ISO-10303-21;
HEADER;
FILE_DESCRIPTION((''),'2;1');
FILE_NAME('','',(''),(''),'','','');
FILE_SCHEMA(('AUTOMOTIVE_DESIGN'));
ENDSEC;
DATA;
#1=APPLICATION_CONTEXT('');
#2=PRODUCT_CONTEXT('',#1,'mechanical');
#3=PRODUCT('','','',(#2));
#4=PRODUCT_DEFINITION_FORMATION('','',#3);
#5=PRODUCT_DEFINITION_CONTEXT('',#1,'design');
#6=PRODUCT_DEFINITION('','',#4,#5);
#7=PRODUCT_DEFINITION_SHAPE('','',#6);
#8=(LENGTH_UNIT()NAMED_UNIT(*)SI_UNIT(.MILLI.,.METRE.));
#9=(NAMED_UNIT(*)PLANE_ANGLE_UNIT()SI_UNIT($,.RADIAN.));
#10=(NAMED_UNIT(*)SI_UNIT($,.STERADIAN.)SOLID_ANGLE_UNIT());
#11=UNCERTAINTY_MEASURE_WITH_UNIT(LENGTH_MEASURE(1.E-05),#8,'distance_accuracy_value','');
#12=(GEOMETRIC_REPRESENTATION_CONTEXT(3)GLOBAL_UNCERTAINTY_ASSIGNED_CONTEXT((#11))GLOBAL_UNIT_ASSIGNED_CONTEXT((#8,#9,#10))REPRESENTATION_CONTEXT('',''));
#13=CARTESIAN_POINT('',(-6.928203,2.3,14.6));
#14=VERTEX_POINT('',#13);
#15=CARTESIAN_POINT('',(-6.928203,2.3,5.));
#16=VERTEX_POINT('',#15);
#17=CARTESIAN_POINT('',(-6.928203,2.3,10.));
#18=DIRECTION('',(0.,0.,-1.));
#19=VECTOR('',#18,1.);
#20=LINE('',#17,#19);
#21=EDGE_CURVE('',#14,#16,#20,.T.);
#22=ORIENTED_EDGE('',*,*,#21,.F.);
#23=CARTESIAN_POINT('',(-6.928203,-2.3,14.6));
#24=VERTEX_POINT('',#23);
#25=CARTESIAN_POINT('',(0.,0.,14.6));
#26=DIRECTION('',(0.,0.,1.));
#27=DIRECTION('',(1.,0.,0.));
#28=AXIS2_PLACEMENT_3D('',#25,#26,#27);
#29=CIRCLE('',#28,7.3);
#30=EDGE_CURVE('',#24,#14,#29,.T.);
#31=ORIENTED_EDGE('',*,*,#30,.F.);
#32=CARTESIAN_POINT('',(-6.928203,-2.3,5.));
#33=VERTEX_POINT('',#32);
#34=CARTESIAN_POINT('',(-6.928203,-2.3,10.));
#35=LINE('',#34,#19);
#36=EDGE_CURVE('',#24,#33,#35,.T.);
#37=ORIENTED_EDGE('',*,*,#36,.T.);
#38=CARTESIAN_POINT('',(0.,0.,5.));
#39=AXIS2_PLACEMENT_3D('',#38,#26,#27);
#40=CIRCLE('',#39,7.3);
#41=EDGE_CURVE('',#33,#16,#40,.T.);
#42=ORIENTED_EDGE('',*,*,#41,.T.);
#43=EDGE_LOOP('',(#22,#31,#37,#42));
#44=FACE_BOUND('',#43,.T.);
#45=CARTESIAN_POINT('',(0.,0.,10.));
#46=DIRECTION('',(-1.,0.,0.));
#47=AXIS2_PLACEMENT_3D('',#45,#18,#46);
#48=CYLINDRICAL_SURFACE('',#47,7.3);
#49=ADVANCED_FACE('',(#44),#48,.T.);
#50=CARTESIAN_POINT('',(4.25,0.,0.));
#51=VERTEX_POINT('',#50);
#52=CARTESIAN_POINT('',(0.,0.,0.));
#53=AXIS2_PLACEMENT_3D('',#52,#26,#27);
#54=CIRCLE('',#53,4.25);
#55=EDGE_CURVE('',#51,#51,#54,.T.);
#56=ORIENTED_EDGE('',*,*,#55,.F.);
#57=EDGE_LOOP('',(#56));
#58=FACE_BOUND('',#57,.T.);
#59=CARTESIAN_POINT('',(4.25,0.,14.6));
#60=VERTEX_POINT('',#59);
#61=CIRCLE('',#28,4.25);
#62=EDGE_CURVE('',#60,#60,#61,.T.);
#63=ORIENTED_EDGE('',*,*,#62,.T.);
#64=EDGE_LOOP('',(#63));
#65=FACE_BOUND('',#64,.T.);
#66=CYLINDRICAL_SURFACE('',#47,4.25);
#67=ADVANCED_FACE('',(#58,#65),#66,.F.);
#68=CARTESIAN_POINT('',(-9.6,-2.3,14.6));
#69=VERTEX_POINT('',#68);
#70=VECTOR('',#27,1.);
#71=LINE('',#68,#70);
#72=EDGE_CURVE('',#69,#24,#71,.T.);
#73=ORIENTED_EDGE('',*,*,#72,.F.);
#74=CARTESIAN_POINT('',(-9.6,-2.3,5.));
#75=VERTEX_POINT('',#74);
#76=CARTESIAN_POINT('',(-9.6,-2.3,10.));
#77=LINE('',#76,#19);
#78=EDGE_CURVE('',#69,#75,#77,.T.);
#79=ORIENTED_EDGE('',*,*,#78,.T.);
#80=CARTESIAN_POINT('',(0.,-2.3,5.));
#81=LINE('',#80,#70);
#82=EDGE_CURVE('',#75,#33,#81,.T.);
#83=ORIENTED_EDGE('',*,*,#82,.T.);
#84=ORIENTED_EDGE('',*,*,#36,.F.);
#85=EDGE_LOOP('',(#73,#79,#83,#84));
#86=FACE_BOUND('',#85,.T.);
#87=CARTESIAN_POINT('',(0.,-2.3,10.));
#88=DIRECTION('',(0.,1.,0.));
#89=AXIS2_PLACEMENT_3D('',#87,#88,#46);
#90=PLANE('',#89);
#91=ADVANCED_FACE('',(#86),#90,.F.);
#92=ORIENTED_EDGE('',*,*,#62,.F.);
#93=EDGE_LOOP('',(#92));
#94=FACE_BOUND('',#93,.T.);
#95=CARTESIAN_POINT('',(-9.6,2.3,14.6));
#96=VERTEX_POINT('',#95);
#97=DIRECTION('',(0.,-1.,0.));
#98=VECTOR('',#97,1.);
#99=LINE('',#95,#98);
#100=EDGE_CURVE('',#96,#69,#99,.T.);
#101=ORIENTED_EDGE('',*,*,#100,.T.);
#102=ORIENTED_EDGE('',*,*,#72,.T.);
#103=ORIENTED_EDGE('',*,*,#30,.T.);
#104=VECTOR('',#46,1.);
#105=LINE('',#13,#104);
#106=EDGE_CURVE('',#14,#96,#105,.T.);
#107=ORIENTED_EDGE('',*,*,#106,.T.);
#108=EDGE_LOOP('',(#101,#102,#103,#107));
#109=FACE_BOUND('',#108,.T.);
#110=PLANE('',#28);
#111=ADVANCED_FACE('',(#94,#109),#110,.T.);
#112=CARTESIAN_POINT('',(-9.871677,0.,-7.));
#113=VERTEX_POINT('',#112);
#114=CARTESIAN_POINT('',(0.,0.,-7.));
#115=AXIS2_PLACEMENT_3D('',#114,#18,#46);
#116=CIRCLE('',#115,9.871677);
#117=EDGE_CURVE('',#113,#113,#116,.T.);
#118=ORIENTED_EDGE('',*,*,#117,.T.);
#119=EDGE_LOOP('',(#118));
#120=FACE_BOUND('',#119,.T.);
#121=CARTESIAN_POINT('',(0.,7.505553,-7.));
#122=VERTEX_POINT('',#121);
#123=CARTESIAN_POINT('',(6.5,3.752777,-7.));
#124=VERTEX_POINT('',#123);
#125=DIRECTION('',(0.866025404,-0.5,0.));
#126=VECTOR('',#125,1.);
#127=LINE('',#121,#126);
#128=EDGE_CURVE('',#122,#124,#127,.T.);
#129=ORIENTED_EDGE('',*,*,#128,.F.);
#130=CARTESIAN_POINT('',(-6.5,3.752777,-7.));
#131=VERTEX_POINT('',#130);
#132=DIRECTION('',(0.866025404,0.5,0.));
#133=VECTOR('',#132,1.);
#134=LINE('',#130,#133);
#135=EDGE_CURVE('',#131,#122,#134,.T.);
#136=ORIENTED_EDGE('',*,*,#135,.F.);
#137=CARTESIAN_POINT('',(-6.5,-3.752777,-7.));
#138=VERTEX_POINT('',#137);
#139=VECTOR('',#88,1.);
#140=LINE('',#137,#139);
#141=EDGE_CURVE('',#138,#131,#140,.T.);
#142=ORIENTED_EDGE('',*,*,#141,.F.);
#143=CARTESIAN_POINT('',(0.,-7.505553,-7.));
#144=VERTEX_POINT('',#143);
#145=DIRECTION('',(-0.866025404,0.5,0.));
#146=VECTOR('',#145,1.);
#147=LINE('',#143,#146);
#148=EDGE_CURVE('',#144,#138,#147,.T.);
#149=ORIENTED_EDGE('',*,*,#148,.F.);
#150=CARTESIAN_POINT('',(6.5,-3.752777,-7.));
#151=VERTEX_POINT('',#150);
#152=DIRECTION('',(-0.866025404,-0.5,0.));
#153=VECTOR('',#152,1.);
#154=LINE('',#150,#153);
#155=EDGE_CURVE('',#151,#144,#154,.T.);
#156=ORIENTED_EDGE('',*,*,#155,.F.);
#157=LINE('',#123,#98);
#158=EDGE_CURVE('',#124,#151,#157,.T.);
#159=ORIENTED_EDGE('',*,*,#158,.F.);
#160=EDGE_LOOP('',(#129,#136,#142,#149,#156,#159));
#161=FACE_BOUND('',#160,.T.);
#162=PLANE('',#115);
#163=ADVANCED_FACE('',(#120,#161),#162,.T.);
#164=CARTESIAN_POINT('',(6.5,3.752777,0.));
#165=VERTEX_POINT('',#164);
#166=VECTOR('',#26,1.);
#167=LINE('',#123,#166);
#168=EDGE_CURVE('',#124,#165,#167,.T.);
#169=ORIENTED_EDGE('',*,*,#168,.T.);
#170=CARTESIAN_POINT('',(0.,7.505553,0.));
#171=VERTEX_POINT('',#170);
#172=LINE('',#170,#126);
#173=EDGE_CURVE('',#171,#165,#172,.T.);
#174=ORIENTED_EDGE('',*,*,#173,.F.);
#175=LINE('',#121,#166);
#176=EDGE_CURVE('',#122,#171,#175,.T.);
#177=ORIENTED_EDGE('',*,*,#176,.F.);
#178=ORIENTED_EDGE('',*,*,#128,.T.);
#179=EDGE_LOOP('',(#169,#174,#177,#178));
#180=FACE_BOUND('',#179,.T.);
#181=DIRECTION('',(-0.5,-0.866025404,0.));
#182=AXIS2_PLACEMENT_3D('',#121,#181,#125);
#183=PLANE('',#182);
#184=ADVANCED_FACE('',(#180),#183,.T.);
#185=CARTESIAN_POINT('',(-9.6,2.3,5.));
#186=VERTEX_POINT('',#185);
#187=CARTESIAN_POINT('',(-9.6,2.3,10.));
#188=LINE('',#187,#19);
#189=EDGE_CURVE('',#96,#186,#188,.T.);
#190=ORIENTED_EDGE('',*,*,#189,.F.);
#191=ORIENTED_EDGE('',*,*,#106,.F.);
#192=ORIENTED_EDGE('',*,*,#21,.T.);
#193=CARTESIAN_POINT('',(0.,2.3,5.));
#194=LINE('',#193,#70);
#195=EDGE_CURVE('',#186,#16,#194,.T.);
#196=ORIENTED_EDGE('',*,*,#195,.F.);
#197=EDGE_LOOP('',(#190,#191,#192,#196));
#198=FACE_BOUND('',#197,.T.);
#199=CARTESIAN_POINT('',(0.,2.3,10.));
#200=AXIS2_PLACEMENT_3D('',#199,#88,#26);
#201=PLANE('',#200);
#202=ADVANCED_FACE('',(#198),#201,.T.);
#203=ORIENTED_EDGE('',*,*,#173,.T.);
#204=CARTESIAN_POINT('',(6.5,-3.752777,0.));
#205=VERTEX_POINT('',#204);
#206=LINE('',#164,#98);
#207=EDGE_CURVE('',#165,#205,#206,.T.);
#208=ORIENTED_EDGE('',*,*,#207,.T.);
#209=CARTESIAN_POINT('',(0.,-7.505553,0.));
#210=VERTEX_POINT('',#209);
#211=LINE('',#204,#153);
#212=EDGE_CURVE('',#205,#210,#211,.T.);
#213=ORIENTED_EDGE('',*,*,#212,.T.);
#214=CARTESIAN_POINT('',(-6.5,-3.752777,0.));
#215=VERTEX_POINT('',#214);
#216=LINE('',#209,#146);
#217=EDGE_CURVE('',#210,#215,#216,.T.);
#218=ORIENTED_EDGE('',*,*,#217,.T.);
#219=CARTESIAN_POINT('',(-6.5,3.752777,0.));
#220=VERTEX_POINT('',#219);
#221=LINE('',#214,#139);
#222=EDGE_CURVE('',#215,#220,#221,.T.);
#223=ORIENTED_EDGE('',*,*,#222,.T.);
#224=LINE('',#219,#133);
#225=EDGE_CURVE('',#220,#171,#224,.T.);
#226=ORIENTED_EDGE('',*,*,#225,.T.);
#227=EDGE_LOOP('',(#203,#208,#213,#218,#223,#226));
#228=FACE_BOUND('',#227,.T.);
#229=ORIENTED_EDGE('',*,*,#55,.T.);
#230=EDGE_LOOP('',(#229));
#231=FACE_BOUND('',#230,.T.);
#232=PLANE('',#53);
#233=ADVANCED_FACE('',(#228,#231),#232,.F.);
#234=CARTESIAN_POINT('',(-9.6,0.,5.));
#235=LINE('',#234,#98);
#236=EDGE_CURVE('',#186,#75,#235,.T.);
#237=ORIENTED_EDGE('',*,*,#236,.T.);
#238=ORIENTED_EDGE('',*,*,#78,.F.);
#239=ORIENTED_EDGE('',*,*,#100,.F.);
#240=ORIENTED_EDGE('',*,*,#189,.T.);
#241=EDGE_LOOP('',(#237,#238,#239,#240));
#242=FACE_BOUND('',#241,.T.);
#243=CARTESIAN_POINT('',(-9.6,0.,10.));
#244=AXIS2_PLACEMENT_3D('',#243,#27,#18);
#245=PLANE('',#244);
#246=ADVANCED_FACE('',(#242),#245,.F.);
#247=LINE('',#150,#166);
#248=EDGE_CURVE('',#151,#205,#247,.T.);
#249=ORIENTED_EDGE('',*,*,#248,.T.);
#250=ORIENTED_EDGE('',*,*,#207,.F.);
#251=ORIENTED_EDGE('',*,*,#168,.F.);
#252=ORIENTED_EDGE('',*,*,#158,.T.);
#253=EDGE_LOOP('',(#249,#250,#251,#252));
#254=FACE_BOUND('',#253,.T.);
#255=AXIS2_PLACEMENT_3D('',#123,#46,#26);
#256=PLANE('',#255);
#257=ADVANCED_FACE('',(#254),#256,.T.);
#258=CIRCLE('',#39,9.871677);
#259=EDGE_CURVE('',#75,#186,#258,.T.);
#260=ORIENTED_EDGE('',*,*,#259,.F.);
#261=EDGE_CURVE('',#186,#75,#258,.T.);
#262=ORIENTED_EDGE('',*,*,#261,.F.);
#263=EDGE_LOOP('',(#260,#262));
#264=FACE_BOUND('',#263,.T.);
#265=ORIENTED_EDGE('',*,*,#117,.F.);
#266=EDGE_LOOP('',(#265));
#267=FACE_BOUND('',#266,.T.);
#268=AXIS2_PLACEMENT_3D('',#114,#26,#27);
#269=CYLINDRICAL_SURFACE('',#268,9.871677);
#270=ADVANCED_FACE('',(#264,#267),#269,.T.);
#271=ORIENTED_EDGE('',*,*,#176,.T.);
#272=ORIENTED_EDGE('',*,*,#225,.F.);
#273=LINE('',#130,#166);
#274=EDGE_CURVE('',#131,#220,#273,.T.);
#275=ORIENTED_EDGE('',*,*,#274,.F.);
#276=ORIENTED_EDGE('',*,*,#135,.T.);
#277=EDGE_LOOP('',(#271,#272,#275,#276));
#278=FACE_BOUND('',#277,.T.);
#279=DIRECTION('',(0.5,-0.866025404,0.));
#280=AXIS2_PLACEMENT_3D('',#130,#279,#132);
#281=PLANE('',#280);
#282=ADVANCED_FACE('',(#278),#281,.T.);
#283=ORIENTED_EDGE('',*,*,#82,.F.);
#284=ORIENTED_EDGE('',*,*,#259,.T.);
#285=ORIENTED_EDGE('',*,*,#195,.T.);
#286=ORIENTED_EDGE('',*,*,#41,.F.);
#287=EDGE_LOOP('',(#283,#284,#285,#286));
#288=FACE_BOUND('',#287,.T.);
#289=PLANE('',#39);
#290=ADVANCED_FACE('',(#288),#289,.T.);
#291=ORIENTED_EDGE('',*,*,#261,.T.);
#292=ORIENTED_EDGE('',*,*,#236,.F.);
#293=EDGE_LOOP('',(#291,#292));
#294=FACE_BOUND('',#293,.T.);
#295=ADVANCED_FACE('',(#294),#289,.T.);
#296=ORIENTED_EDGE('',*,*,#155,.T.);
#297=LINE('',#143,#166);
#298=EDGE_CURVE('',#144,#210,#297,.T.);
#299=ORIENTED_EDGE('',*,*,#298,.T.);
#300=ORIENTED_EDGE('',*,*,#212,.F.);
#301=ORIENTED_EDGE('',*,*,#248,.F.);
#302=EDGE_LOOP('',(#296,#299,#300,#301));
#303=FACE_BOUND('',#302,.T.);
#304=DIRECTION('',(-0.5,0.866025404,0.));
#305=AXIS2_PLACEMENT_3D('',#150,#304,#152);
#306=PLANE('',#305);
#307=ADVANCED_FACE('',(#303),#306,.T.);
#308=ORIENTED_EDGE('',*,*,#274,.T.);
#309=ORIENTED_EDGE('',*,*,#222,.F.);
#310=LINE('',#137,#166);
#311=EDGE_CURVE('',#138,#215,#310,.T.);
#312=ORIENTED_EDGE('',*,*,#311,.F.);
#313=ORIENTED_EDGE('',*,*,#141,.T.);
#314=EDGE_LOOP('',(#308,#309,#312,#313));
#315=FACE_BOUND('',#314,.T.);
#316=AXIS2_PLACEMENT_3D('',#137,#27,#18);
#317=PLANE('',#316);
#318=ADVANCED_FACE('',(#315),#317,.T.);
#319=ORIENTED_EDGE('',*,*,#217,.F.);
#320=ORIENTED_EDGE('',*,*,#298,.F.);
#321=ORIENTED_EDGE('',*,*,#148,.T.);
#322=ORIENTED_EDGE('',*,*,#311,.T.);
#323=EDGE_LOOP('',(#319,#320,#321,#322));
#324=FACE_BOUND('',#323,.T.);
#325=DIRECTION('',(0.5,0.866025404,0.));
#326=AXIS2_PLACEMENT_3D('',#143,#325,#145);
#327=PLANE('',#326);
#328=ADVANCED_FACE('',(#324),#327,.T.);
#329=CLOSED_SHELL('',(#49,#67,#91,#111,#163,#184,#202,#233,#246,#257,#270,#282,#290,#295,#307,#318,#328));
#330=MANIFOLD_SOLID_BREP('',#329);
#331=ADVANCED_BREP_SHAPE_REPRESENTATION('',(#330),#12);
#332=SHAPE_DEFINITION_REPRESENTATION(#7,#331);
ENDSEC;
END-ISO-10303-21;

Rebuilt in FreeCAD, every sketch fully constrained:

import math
import FreeCAD as App
import Part
import Sketcher
Q = App.Units.Quantity

doc = App.newDocument("Part")
body = doc.addObject("PartDesign::Body", "Body")

# Sketch on XY plane
sketch1 = body.newObject("Sketcher::SketchObject", "Sketch")
sketch1.AttachmentSupport = (doc.getObject("XY_Plane"), [""])
sketch1.MapMode = "FlatFace"
sketch1.addGeometry([
    Part.LineSegment(App.Vector(-9.6, -2.3, 0), App.Vector(-6.928203, -2.3, 0)),  # 0
    Part.ArcOfCircle(Part.Circle(App.Vector(0, 0, 0), App.Vector(0, 0, 1), 7.3), math.radians(-161.635051), math.radians(161.635051)),  # 1
    Part.LineSegment(App.Vector(-6.928203, 2.3, 0), App.Vector(-9.6, 2.3, 0)),  # 2
    Part.LineSegment(App.Vector(-9.6, 2.3, 0), App.Vector(-9.6, -2.3, 0)),  # 3
    Part.Circle(App.Vector(0, 0, 0), App.Vector(0, 0, 1), 4.25),  # 4
], False)
sketch1.addConstraint([
    Sketcher.Constraint("Coincident", 0, 2, 1, 1),
    Sketcher.Constraint("Coincident", 1, 2, 2, 1),
    Sketcher.Constraint("Coincident", 2, 2, 3, 1),
    Sketcher.Constraint("Coincident", 3, 2, 0, 1),
    Sketcher.Constraint("Horizontal", 0),
    Sketcher.Constraint("Horizontal", 2),
    Sketcher.Constraint("Vertical", 3),
    Sketcher.Constraint("Coincident", 1, 3, -1, 1),
    Sketcher.Constraint("Coincident", 4, 3, -1, 1),
    Sketcher.Constraint("Vertical", 0, 2, 1, 2),
    Sketcher.Constraint("Diameter", 4, 8.5),
    Sketcher.Constraint("Radius", 1, 7.3),
    Sketcher.Constraint("DistanceY", 3, 2, 3, 1, 4.6),
    Sketcher.Constraint("DistanceX", 2, 2, -1, 1, 9.6),
])
pad1 = body.newObject("PartDesign::Pad", "Pad")
pad1.Profile = sketch1
pad1.Length = 10

# Sketch on XY plane
sketch2 = body.newObject("Sketcher::SketchObject", "Sketch001")
sketch2.AttachmentSupport = (doc.getObject("XY_Plane"), [""])
sketch2.MapMode = "FlatFace"
sketch2.addGeometry([
    Part.Circle(App.Vector(0, 0, 0), App.Vector(0, 0, 1), 9.871677),  # 0
    Part.LineSegment(App.Vector(-6.5, -3.752777, 0), App.Vector(0, -7.505553, 0)),  # 1
    Part.LineSegment(App.Vector(0, -7.505553, 0), App.Vector(6.5, -3.752777, 0)),  # 2
    Part.LineSegment(App.Vector(6.5, -3.752777, 0), App.Vector(6.5, 3.752777, 0)),  # 3
    Part.LineSegment(App.Vector(6.5, 3.752777, 0), App.Vector(0, 7.505553, 0)),  # 4
    Part.LineSegment(App.Vector(0, 7.505553, 0), App.Vector(-6.5, 3.752777, 0)),  # 5
    Part.LineSegment(App.Vector(-6.5, 3.752777, 0), App.Vector(-6.5, -3.752777, 0)),  # 6
], False)
sketch2.addConstraint([
    Sketcher.Constraint("Coincident", 1, 2, 2, 1),
    Sketcher.Constraint("Coincident", 2, 2, 3, 1),
    Sketcher.Constraint("Coincident", 3, 2, 4, 1),
    Sketcher.Constraint("Coincident", 4, 2, 5, 1),
    Sketcher.Constraint("Coincident", 5, 2, 6, 1),
    Sketcher.Constraint("Coincident", 6, 2, 1, 1),
    Sketcher.Constraint("Vertical", 3),
    Sketcher.Constraint("Vertical", 6),
    Sketcher.Constraint("Coincident", 0, 3, -1, 1),
    Sketcher.Constraint("Symmetric", 1, 2, 4, 2, -1, 1),
    Sketcher.Constraint("Symmetric", 2, 2, 5, 2, -1, 1),
    Sketcher.Constraint("PointOnObject", 1, 2, -2),
    Sketcher.Constraint("Parallel", 1, 4),
    Sketcher.Constraint("Horizontal", 3, 2, 5, 2),
    Sketcher.Constraint("Angle", 1, Q("-30 deg")),
    Sketcher.Constraint("DistanceX", 5, 2, 3, 2, 13.0),
    Sketcher.Constraint("Diameter", 0, 19.743353),
    Sketcher.Constraint("DistanceY", 3, 1, 3, 2, 7.505554),
])
pad2 = body.newObject("PartDesign::Pad", "Pad001")
pad2.Profile = sketch2
pad2.Length = 7
pad2.Reversed = True

# Sketch on XY plane
sketch3 = body.newObject("Sketcher::SketchObject", "Sketch002")
sketch3.AttachmentSupport = (doc.getObject("XY_Plane"), [""])
sketch3.MapMode = "FlatFace"
sketch3.addGeometry([
    Part.Circle(App.Vector(0, 0, 0), App.Vector(0, 0, 1), 9.871677),
    Part.Circle(App.Vector(0, 0, 0), App.Vector(0, 0, 1), 7.3),
], False)
sketch3.addConstraint([
    Sketcher.Constraint("Coincident", 0, 3, -1, 1),
    Sketcher.Constraint("Coincident", 1, 3, -1, 1),
    Sketcher.Constraint("Diameter", 1, 14.6),
    Sketcher.Constraint("Diameter", 0, 19.743353),
])
pad3 = body.newObject("PartDesign::Pad", "Pad002")
pad3.Profile = sketch3
pad3.Length = 5

# Sketch on XY plane
sketch4 = body.newObject("Sketcher::SketchObject", "Sketch003")
sketch4.AttachmentSupport = (doc.getObject("XY_Plane"), [""])
sketch4.MapMode = "FlatFace"
sketch4.AttachmentOffset = App.Placement(App.Vector(0, 0, 10), App.Rotation())
sketch4.addGeometry([
    Part.LineSegment(App.Vector(-9.6, -2.3, 0), App.Vector(-6.928203, -2.3, 0)),  # 0
    Part.ArcOfCircle(Part.Circle(App.Vector(0, 0, 0), App.Vector(0, 0, 1), 7.3), math.radians(-161.635051), math.radians(161.635051)),  # 1
    Part.LineSegment(App.Vector(-6.928203, 2.3, 0), App.Vector(-9.6, 2.3, 0)),  # 2
    Part.LineSegment(App.Vector(-9.6, 2.3, 0), App.Vector(-9.6, -2.3, 0)),  # 3
    Part.Circle(App.Vector(0, 0, 0), App.Vector(0, 0, 1), 4.25),  # 4
], False)
sketch4.addConstraint([
    Sketcher.Constraint("Coincident", 0, 2, 1, 1),
    Sketcher.Constraint("Coincident", 1, 2, 2, 1),
    Sketcher.Constraint("Coincident", 2, 2, 3, 1),
    Sketcher.Constraint("Coincident", 3, 2, 0, 1),
    Sketcher.Constraint("Horizontal", 0),
    Sketcher.Constraint("Horizontal", 2),
    Sketcher.Constraint("Vertical", 3),
    Sketcher.Constraint("Coincident", 1, 3, -1, 1),
    Sketcher.Constraint("Coincident", 4, 3, -1, 1),
    Sketcher.Constraint("Vertical", 0, 2, 1, 2),
    Sketcher.Constraint("Diameter", 4, 8.5),
    Sketcher.Constraint("Radius", 1, 7.3),
    Sketcher.Constraint("DistanceY", 3, 2, 3, 1, 4.6),
    Sketcher.Constraint("DistanceX", 2, 2, -1, 1, 9.6),
])
pad4 = body.newObject("PartDesign::Pad", "Pad003")
pad4.Profile = sketch4
pad4.Length = 5

# Sketch on XY plane
sketch5 = body.newObject("Sketcher::SketchObject", "Sketch004")
sketch5.AttachmentSupport = (doc.getObject("XY_Plane"), [""])
sketch5.MapMode = "FlatFace"
sketch5.AttachmentOffset = App.Placement(App.Vector(0, 0, 14.6), App.Rotation())
sketch5.addGeometry([
    Part.LineSegment(App.Vector(-9.6, 2.3, 0), App.Vector(-9.6, -2.3, 0)),
    Part.LineSegment(App.Vector(-9.6, -2.3, 0), App.Vector(-6.928203, -2.3, 0)),
    Part.ArcOfCircle(Part.Circle(App.Vector(0, 0, 0), App.Vector(0, 0, 1), 7.3), math.radians(-161.635051), math.radians(161.635051)),
    Part.LineSegment(App.Vector(-6.928203, 2.3, 0), App.Vector(-9.6, 2.3, 0)),
], False)
sketch5.addConstraint([
    Sketcher.Constraint("Coincident", 0, 2, 1, 1),
    Sketcher.Constraint("Coincident", 1, 2, 2, 1),
    Sketcher.Constraint("Coincident", 2, 2, 3, 1),
    Sketcher.Constraint("Coincident", 3, 2, 0, 1),
    Sketcher.Constraint("Vertical", 0),
    Sketcher.Constraint("Horizontal", 1),
    Sketcher.Constraint("Horizontal", 3),
    Sketcher.Constraint("Coincident", 2, 3, -1, 1),
    Sketcher.Constraint("Vertical", 1, 2, 2, 2),
    Sketcher.Constraint("Radius", 2, 7.3),
    Sketcher.Constraint("DistanceY", 0, 2, 0, 1, 4.6),
    Sketcher.Constraint("DistanceX", 0, 2, -1, 1, 9.6),
])
pocket1 = body.newObject("PartDesign::Pocket", "Pocket")
pocket1.Profile = sketch5
pocket1.Length = 0.4
pocket1.Reversed = True

doc.recompute()
